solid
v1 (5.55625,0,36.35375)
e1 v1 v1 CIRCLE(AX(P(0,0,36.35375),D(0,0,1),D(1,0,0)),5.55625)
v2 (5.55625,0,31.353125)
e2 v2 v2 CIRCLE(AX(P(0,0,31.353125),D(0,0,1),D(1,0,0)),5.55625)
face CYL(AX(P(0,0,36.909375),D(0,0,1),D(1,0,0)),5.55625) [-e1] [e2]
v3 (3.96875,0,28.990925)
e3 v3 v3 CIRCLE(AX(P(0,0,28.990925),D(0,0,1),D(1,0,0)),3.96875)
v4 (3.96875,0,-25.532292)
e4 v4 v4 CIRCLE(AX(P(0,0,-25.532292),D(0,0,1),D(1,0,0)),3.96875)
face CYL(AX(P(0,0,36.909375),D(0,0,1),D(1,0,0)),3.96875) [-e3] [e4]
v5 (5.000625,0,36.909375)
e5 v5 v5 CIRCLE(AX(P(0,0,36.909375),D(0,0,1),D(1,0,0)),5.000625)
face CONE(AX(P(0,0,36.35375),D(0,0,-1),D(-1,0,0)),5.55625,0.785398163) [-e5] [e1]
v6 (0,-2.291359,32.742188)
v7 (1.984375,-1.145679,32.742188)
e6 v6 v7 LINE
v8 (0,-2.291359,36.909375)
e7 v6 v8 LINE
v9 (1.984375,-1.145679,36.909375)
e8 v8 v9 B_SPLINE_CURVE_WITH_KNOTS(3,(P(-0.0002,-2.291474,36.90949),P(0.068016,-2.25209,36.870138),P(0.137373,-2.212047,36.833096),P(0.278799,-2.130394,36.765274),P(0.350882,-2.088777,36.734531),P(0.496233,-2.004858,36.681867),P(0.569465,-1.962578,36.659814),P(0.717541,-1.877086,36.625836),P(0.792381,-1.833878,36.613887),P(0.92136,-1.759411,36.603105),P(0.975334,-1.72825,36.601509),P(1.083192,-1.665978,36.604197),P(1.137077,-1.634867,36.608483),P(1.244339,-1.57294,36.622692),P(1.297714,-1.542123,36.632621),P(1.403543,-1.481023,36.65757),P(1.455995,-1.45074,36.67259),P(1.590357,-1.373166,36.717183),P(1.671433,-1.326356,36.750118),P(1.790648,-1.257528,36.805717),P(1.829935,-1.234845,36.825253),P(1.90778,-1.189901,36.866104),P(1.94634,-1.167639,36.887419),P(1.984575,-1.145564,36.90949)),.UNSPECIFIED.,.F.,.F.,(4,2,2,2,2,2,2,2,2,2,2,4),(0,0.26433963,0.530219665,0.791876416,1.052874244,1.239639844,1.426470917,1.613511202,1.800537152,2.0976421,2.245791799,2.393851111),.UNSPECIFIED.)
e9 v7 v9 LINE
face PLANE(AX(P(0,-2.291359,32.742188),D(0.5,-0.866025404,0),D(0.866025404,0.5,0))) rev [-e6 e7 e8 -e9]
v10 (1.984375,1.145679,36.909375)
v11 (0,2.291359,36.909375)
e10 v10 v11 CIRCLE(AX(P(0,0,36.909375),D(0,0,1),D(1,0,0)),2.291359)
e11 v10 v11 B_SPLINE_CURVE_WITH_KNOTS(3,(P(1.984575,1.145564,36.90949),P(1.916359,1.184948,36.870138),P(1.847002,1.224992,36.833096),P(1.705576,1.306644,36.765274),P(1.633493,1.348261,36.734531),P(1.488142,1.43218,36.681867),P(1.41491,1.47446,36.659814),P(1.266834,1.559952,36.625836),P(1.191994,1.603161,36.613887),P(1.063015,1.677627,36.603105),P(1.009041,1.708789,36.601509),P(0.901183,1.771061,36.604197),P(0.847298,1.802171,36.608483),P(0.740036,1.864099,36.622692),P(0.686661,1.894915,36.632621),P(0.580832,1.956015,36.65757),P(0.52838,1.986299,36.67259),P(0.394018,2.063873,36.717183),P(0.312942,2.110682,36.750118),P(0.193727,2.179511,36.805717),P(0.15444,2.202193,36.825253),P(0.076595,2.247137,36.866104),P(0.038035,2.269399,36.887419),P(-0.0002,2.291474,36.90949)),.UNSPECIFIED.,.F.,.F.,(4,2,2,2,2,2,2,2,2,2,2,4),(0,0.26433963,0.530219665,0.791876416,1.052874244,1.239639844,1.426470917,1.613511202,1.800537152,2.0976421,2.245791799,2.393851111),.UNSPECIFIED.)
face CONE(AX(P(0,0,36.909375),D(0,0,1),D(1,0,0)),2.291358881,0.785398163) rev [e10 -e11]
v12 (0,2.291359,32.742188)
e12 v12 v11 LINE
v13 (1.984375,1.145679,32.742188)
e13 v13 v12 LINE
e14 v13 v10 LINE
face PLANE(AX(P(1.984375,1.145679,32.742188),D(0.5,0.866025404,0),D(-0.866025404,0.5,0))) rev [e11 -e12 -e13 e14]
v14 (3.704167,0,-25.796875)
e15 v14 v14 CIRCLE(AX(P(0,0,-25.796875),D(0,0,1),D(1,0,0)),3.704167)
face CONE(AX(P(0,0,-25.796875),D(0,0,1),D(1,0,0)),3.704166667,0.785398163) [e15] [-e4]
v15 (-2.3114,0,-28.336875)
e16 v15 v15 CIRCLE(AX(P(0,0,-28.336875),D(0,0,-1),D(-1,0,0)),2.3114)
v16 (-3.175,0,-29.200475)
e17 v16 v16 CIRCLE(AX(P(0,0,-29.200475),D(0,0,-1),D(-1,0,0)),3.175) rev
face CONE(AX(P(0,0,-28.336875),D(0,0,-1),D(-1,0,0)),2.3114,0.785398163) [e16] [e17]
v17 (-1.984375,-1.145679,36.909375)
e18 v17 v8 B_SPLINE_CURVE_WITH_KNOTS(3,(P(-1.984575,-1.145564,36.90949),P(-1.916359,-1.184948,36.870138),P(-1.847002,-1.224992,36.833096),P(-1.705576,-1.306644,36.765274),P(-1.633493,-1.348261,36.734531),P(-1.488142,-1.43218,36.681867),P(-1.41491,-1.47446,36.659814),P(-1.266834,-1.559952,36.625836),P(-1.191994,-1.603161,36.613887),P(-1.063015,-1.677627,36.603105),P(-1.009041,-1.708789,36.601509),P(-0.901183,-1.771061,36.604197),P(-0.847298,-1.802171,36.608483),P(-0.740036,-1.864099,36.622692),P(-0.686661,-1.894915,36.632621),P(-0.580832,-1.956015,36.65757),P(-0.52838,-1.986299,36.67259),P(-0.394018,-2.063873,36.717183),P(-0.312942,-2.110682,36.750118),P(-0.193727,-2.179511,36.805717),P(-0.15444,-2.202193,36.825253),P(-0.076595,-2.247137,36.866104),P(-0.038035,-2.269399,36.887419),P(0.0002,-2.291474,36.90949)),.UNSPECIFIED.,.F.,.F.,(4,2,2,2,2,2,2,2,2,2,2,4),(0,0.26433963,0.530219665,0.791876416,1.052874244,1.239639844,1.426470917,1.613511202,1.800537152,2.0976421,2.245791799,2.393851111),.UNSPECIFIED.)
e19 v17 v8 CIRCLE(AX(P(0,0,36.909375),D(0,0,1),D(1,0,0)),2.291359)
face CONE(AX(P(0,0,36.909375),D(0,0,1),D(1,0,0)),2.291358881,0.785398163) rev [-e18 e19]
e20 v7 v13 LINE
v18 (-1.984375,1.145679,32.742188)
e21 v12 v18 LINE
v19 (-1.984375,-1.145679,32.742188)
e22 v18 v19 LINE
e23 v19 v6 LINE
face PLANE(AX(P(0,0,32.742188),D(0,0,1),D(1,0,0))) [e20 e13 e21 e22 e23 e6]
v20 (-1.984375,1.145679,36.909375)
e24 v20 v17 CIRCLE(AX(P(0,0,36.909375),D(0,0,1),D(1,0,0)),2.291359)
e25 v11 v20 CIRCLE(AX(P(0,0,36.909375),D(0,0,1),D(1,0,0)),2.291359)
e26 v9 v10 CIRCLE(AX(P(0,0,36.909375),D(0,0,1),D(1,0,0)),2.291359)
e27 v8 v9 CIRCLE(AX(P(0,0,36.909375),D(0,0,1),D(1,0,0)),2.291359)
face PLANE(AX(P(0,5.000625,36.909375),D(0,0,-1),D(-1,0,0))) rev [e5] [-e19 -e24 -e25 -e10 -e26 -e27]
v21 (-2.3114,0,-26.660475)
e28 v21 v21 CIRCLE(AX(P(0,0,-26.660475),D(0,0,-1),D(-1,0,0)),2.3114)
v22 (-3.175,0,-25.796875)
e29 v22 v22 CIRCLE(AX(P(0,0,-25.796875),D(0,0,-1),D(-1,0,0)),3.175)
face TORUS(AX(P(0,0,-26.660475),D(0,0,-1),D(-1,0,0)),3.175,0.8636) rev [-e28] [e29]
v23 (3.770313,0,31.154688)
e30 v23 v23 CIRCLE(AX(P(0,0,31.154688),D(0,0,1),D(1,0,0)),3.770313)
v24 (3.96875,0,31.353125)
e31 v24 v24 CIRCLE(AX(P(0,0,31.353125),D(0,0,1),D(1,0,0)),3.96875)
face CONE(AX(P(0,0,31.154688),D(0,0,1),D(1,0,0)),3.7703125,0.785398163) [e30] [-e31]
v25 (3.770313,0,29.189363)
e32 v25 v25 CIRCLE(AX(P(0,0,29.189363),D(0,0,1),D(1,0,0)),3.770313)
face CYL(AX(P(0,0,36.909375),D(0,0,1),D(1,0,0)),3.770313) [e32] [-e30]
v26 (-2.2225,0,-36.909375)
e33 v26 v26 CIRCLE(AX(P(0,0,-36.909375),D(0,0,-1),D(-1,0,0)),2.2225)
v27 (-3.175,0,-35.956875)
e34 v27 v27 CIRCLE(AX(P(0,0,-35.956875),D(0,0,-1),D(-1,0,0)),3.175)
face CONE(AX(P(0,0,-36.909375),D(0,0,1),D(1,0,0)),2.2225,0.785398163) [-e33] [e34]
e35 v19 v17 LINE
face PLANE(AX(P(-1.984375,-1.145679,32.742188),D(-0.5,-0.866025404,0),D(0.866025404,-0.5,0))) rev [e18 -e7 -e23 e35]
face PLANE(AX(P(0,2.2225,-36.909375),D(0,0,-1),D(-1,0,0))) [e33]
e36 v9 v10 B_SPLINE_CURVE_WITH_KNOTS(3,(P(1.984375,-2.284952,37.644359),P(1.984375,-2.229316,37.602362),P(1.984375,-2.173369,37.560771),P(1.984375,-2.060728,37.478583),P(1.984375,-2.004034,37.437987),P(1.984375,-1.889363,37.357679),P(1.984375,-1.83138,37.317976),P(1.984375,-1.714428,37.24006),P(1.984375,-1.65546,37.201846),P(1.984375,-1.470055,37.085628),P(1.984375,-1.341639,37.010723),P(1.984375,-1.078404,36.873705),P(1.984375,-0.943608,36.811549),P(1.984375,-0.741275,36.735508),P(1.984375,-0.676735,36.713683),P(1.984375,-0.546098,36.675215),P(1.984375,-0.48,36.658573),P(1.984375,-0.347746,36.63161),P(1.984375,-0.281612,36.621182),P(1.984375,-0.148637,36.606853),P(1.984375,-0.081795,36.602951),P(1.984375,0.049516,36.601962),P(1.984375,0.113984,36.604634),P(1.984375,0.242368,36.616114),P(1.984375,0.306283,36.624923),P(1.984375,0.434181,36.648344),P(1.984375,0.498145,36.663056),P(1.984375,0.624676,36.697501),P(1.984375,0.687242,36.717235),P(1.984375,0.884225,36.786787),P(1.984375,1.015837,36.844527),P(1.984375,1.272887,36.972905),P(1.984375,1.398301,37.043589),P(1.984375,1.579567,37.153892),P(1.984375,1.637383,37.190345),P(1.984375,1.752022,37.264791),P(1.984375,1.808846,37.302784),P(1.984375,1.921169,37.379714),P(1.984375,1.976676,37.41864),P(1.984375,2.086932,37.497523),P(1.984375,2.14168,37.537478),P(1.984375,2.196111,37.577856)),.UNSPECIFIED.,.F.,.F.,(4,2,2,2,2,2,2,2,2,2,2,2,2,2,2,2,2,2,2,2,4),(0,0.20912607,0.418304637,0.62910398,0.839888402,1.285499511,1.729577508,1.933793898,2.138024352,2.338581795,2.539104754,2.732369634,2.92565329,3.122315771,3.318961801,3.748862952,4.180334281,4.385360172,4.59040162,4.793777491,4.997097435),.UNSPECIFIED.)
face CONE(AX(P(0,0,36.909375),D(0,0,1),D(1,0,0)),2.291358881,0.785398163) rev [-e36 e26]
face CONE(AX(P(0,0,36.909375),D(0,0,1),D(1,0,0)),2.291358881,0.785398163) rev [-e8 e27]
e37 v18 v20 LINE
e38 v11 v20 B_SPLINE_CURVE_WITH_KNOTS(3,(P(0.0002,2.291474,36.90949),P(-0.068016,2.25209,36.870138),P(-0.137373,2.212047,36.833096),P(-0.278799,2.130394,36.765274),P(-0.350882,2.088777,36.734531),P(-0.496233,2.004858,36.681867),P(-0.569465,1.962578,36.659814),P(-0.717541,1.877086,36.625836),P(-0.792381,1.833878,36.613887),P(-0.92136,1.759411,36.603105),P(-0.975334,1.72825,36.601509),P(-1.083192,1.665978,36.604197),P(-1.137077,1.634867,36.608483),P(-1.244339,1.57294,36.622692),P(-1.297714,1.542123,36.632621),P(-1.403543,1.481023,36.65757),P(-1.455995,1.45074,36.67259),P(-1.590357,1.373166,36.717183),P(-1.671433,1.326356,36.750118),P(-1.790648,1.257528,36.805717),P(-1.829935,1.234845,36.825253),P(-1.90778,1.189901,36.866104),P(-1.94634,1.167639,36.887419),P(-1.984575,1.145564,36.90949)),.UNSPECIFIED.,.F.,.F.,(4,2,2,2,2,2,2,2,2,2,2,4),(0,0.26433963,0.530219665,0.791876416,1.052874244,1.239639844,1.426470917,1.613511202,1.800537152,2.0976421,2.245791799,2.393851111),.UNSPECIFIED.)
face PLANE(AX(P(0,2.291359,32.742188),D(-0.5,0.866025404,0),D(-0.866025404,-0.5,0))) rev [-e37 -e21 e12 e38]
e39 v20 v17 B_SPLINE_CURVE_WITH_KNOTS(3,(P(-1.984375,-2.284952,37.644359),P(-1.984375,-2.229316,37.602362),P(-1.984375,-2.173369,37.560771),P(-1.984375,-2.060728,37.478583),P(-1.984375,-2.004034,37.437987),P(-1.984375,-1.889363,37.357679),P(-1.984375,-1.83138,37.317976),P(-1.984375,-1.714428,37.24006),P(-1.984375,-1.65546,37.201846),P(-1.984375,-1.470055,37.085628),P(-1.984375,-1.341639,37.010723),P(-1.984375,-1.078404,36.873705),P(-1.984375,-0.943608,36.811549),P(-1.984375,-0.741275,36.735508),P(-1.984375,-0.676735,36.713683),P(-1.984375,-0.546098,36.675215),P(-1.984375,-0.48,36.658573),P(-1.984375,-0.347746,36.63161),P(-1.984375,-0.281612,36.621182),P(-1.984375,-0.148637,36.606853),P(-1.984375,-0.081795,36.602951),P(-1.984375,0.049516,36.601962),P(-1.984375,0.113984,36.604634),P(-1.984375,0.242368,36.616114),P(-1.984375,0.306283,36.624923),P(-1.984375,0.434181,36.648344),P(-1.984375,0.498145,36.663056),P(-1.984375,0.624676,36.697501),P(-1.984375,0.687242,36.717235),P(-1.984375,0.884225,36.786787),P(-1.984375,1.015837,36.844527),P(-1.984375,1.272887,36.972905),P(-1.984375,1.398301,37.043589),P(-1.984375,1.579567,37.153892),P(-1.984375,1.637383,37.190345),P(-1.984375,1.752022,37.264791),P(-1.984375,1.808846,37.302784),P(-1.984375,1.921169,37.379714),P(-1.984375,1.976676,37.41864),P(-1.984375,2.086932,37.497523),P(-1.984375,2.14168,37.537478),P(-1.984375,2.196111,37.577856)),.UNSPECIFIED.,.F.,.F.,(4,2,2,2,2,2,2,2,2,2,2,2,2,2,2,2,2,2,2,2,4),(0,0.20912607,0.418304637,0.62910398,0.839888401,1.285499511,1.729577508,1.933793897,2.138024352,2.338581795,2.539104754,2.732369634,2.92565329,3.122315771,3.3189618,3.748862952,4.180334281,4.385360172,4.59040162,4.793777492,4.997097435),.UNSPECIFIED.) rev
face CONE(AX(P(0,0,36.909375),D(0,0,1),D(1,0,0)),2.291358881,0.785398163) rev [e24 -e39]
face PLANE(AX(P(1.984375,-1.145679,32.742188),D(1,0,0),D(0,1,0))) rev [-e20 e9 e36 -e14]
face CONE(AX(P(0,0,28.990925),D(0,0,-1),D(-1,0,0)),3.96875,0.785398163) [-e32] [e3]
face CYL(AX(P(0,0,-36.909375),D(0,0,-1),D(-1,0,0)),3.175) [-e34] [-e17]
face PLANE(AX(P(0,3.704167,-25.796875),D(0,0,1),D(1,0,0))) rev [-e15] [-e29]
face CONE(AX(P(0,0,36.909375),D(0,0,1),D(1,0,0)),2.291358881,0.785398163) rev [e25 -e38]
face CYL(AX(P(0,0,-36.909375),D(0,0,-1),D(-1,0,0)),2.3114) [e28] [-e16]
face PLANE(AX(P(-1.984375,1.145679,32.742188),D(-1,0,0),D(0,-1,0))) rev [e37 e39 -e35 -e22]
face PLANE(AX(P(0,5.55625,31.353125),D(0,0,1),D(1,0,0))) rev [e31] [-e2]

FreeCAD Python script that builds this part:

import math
import FreeCAD as App
import Part
import Sketcher
from FreeCAD import Vector
Q = App.Units.Quantity


def faces_at(feature, points):
    """Names of the faces that lie closest to the given points."""
    faces = feature.Shape.Faces
    near = lambda p: min(range(len(faces)), key=lambda i: faces[i].distToShape(Part.Vertex(*p))[0])
    return sorted({f"Face{near(p) + 1}" for p in points})

doc = App.newDocument("Part")
body = doc.addObject("PartDesign::Body", "Body")

# Sketch on YZ plane
sketch1 = doc.addObject("Sketcher::SketchObject", "Sketch")
body.addObject(sketch1)
sketch1.AttachmentSupport = (doc.YZ_Plane, [""])
sketch1.MapMode = "FlatFace"
sketch1.addGeometry(Part.LineSegment(Vector(5.55625, 31.353125, 0), Vector(5.55625, 36.35375, 0)), False)
sketch1.addGeometry(Part.LineSegment(Vector(5.55625, 36.35375, 0), Vector(5.000625, 36.909375, 0)), False)
sketch1.addGeometry(Part.LineSegment(Vector(5.000625, 36.909375, 0), Vector(0, 36.909375, 0)), False)
sketch1.addGeometry(Part.LineSegment(Vector(0, 36.909375, 0), Vector(0, -25.796875, 0)), False)
sketch1.addGeometry(Part.LineSegment(Vector(0, -25.796875, 0), Vector(3.704167, -25.796875, 0)), False)
sketch1.addGeometry(Part.LineSegment(Vector(3.704167, -25.796875, 0), Vector(3.96875, -25.532292, 0)), False)
sketch1.addGeometry(Part.LineSegment(Vector(3.96875, -25.532292, 0), Vector(3.96875, 28.990925, 0)), False)
sketch1.addGeometry(Part.LineSegment(Vector(3.96875, 28.990925, 0), Vector(3.770313, 29.189363, 0)), False)
sketch1.addGeometry(Part.LineSegment(Vector(3.770313, 29.189363, 0), Vector(3.770313, 31.154688, 0)), False)
sketch1.addGeometry(Part.LineSegment(Vector(3.770313, 31.154688, 0), Vector(3.96875, 31.353125, 0)), False)
sketch1.addGeometry(Part.LineSegment(Vector(3.96875, 31.353125, 0), Vector(5.55625, 31.353125, 0)), False)
sketch1.addConstraint(Sketcher.Constraint("Coincident", 0, 2, 1, 1))
sketch1.addConstraint(Sketcher.Constraint("Coincident", 1, 2, 2, 1))
sketch1.addConstraint(Sketcher.Constraint("Coincident", 2, 2, 3, 1))
sketch1.addConstraint(Sketcher.Constraint("Coincident", 3, 2, 4, 1))
sketch1.addConstraint(Sketcher.Constraint("Coincident", 4, 2, 5, 1))
sketch1.addConstraint(Sketcher.Constraint("Coincident", 5, 2, 6, 1))
sketch1.addConstraint(Sketcher.Constraint("Coincident", 6, 2, 7, 1))
sketch1.addConstraint(Sketcher.Constraint("Coincident", 7, 2, 8, 1))
sketch1.addConstraint(Sketcher.Constraint("Coincident", 8, 2, 9, 1))
sketch1.addConstraint(Sketcher.Constraint("Coincident", 9, 2, 10, 1))
sketch1.addConstraint(Sketcher.Constraint("Coincident", 10, 2, 0, 1))
sketch1.addConstraint(Sketcher.Constraint("Vertical", 0))
sketch1.addConstraint(Sketcher.Constraint("Horizontal", 2))
sketch1.addConstraint(Sketcher.Constraint("Vertical", 3))
sketch1.addConstraint(Sketcher.Constraint("Horizontal", 4))
sketch1.addConstraint(Sketcher.Constraint("Vertical", 6))
sketch1.addConstraint(Sketcher.Constraint("Vertical", 8))
sketch1.addConstraint(Sketcher.Constraint("Horizontal", 10))
sketch1.addConstraint(Sketcher.Constraint("PointOnObject", 2, 2, -2))
sketch1.addConstraint(Sketcher.Constraint("Perpendicular", 1, 5))
sketch1.addConstraint(Sketcher.Constraint("Perpendicular", 5, 7))
sketch1.addConstraint(Sketcher.Constraint("Perpendicular", 7, 9))
sketch1.addConstraint(Sketcher.Constraint("Vertical", 6, 2, 9, 2))
sketch1.addConstraint(Sketcher.Constraint("Equal", 2, 0))
sketch1.addConstraint(Sketcher.Constraint("Equal", 7, 9))
sketch1.addConstraint(Sketcher.Constraint("DistanceX", 10, 1, 10, 2, Q("0.0625 in")))
sketch1.addConstraint(Sketcher.Constraint("DistanceY", 3, 2, 3, 1, Q("2.46875 in")))
sketch1.addConstraint(Sketcher.Constraint("DistanceX", -1, 1, 0, 2, Q("0.21875 in")))
sketch1.addConstraint(Sketcher.Constraint("DistanceY", -1, 1, 1, 2, Q("1.453125 in")))
sketch1.addConstraint(Sketcher.Constraint("DistanceY", 4, 2, 6, 2, Q("2.157 in")))
sketch1.addConstraint(Sketcher.Constraint("DistanceX", 2, 2, 2, 1, 5.000625))
sketch1.addConstraint(Sketcher.Constraint("DistanceX", 4, 1, 4, 2, 3.704167))
sketch1.addConstraint(Sketcher.Constraint("DistanceY", 8, 1, 8, 2, 1.965325))
revolution = doc.addObject("PartDesign::Revolution", "Revolution")
body.addObject(revolution)
revolution.Profile = sketch1
revolution.ReferenceAxis = (sketch1, ["V_Axis"])
revolution.Angle = 360

# Sketch on XY plane
sketch2 = doc.addObject("Sketcher::SketchObject", "Sketch001")
body.addObject(sketch2)
sketch2.AttachmentSupport = (doc.XY_Plane, [""])
sketch2.MapMode = "FlatFace"
sketch2.AttachmentOffset = App.Placement(Vector(0, 0, 1.453125 * 25.4), App.Rotation())
sketch2.addGeometry(Part.LineSegment(Vector(1.984375, 1.145679, 0), Vector(0, 2.291359, 0)), False)
sketch2.addGeometry(Part.LineSegment(Vector(0, 2.291359, 0), Vector(-1.984375, 1.145679, 0)), False)
sketch2.addGeometry(Part.LineSegment(Vector(-1.984375, 1.145679, 0), Vector(-1.984375, -1.145679, 0)), False)
sketch2.addGeometry(Part.LineSegment(Vector(-1.984375, -1.145679, 0), Vector(0, -2.291359, 0)), False)
sketch2.addGeometry(Part.LineSegment(Vector(0, -2.291359, 0), Vector(1.984375, -1.145679, 0)), False)
sketch2.addGeometry(Part.LineSegment(Vector(1.984375, -1.145679, 0), Vector(1.984375, 1.145679, 0)), False)
sketch2.addConstraint(Sketcher.Constraint("Coincident", 0, 2, 1, 1))
sketch2.addConstraint(Sketcher.Constraint("Coincident", 1, 2, 2, 1))
sketch2.addConstraint(Sketcher.Constraint("Coincident", 2, 2, 3, 1))
sketch2.addConstraint(Sketcher.Constraint("Coincident", 3, 2, 4, 1))
sketch2.addConstraint(Sketcher.Constraint("Coincident", 4, 2, 5, 1))
sketch2.addConstraint(Sketcher.Constraint("Coincident", 5, 2, 0, 1))
sketch2.addConstraint(Sketcher.Constraint("Vertical", 2))
sketch2.addConstraint(Sketcher.Constraint("Vertical", 5))
sketch2.addConstraint(Sketcher.Constraint("Symmetric", 0, 2, 3, 2, -1, 1))
sketch2.addConstraint(Sketcher.Constraint("Symmetric", 1, 2, 4, 2, -1, 1))
sketch2.addConstraint(Sketcher.Constraint("PointOnObject", 0, 2, -2))
sketch2.addConstraint(Sketcher.Constraint("Parallel", 0, 3))
sketch2.addConstraint(Sketcher.Constraint("Horizontal", 2, 2, 4, 2))
sketch2.addConstraint(Sketcher.Constraint("Angle", 0, Q("150 deg")))
sketch2.addConstraint(Sketcher.Constraint("DistanceX", 1, 2, -1, 1, Q("0.078125 in")))
sketch2.addConstraint(Sketcher.Constraint("DistanceY", 2, 2, 2, 1, 2.291359))
pocket1 = doc.addObject("PartDesign::Pocket", "Pocket")
body.addObject(pocket1)
pocket1.Profile = sketch2
pocket1.Length = 4.167187
body2 = doc.addObject("PartDesign::Body", "Body001")

# Sketch on XY plane
sketch3 = doc.addObject("Sketcher::SketchObject", "Sketch002")
body2.addObject(sketch3)
sketch3.AttachmentSupport = (doc.getObject("XY_Plane001"), [""])
sketch3.MapMode = "FlatFace"
sketch3.AttachmentOffset = App.Placement(Vector(0, 0, 1.453125 * 25.4), App.Rotation())
sketch3.addGeometry(Part.Circle(Vector(0, 0, 0), Vector(0, 0, 1), 2.291359), False)
sketch3.addConstraint(Sketcher.Constraint("Coincident", 0, 3, -1, 1))
sketch3.addConstraint(Sketcher.Constraint("Diameter", 0, 4.582718))
pad1 = doc.addObject("PartDesign::Pad", "Pad")
body2.addObject(pad1)
pad1.Profile = sketch3
pad1.Length = 4.167187
pad1.Reversed = True
doc.recompute()

datumplane = doc.addObject("PartDesign::Plane", "DatumPlane")
body2.addObject(datumplane)
datumplane.AttachmentSupport = (doc.getObject("XY_Plane001"), [""])
datumplane.MapMode = "FlatFace"
datumplane.AttachmentOffset = App.Placement(Vector(0, 0, 1.453125 * 25.4), App.Rotation())
draft = doc.addObject("PartDesign::Draft", "Draft")
body2.addObject(draft)
draft.Base = (pad1, faces_at(pad1, [(-2.291, 0, 34.826)]))
draft.NeutralPlane = (datumplane, [""])
draft.Angle = 45
draft.Reversed = True
doc.recompute()

boolean = doc.addObject("PartDesign::Boolean", "Boolean")
body.addObject(boolean)
boolean.Type = "Cut"
boolean.addObjects([body2])

# Sketch on YZ plane
sketch4 = doc.addObject("Sketcher::SketchObject", "Sketch003")
body.addObject(sketch4)
sketch4.AttachmentSupport = (doc.YZ_Plane, [""])
sketch4.MapMode = "FlatFace"
sketch4.addGeometry(Part.LineSegment(Vector(3.175, -35.956875, 0), Vector(3.175, -25.796875, 0)), False)
sketch4.addGeometry(Part.LineSegment(Vector(3.175, -25.796875, 0), Vector(0, -25.796875, 0)), False)
sketch4.addGeometry(Part.LineSegment(Vector(0, -25.796875, 0), Vector(0, -36.909375, 0)), False)
sketch4.addGeometry(Part.LineSegment(Vector(0, -36.909375, 0), Vector(2.2225, -36.909375, 0)), False)
sketch4.addGeometry(Part.LineSegment(Vector(2.2225, -36.909375, 0), Vector(3.175, -35.956875, 0)), False)
sketch4.addConstraint(Sketcher.Constraint("Coincident", 0, 2, 1, 1))
sketch4.addConstraint(Sketcher.Constraint("Coincident", 1, 2, 2, 1))
sketch4.addConstraint(Sketcher.Constraint("Coincident", 2, 2, 3, 1))
sketch4.addConstraint(Sketcher.Constraint("Coincident", 3, 2, 4, 1))
sketch4.addConstraint(Sketcher.Constraint("Coincident", 4, 2, 0, 1))
sketch4.addConstraint(Sketcher.Constraint("Vertical", 0))
sketch4.addConstraint(Sketcher.Constraint("Horizontal", 1))
sketch4.addConstraint(Sketcher.Constraint("Vertical", 2))
sketch4.addConstraint(Sketcher.Constraint("Horizontal", 3))
sketch4.addConstraint(Sketcher.Constraint("PointOnObject", 1, 2, -2))
sketch4.addConstraint(Sketcher.Constraint("DistanceY", 0, 1, 0, 2, Q("0.4 in")))
sketch4.addConstraint(Sketcher.Constraint("Angle", 4, Q("45 deg")))
sketch4.addConstraint(Sketcher.Constraint("DistanceX", 1, 2, 1, 1, Q("0.125 in")))
sketch4.addConstraint(Sketcher.Constraint("DistanceY", 2, 2, 2, 1, Q("0.4375 in")))
sketch4.addConstraint(Sketcher.Constraint("DistanceY", 0, 2, -1, 1, Q("1.015625 in")))
revolution2 = doc.addObject("PartDesign::Revolution", "Revolution001")
body.addObject(revolution2)
revolution2.Profile = sketch4
revolution2.ReferenceAxis = (sketch4, ["V_Axis"])
revolution2.Angle = 360

# Sketch on YZ plane
sketch5 = doc.addObject("Sketcher::SketchObject", "Sketch004")
body.addObject(sketch5)
sketch5.AttachmentSupport = (doc.YZ_Plane, [""])
sketch5.MapMode = "FlatFace"
sketch5.addGeometry(Part.LineSegment(Vector(2.3114, -26.660475, 0), Vector(2.3114, -28.336875, 0)), False)
sketch5.addGeometry(Part.LineSegment(Vector(2.3114, -28.336875, 0), Vector(3.96875, -29.994225, 0)), False)
sketch5.addGeometry(Part.LineSegment(Vector(3.96875, -29.994225, 0), Vector(3.96875, -25.796875, 0)), False)
sketch5.addGeometry(Part.LineSegment(Vector(3.96875, -25.796875, 0), Vector(3.175, -25.796875, 0)), False)
sketch5.addGeometry(Part.ArcOfCircle(Part.Circle(Vector(3.175, -26.660475, 0), Vector(0, 0, 1), 0.8636), math.radians(90), math.radians(180)), False)
sketch5.addConstraint(Sketcher.Constraint("Coincident", 0, 2, 1, 1))
sketch5.addConstraint(Sketcher.Constraint("Coincident", 1, 2, 2, 1))
sketch5.addConstraint(Sketcher.Constraint("Coincident", 2, 2, 3, 1))
sketch5.addConstraint(Sketcher.Constraint("Tangent", 3, 2, 4, 1))
sketch5.addConstraint(Sketcher.Constraint("Tangent", 4, 2, 0, 1))
sketch5.addConstraint(Sketcher.Constraint("Vertical", 0))
sketch5.addConstraint(Sketcher.Constraint("Vertical", 2))
sketch5.addConstraint(Sketcher.Constraint("Horizontal", 3))
sketch5.addConstraint(Sketcher.Constraint("Angle", 1, Q("-45 deg")))
sketch5.addConstraint(Sketcher.Constraint("Radius", 4, Q("0.034 in")))
sketch5.addConstraint(Sketcher.Constraint("DistanceY", 0, 2, 2, 2, Q("0.1 in")))
sketch5.addConstraint(Sketcher.Constraint("DistanceX", 3, 2, 3, 1, Q("0.03125 in")))
sketch5.addConstraint(Sketcher.Constraint("DistanceX", -1, 1, 4, 3, Q("0.125 in")))
sketch5.addConstraint(Sketcher.Constraint("DistanceY", 2, 2, -1, 1, Q("1.015625 in")))
groove = doc.addObject("PartDesign::Groove", "Groove")
body.addObject(groove)
groove.Profile = sketch5
groove.ReferenceAxis = (sketch5, ["V_Axis"])
groove.Angle = 360

doc.recompute()
